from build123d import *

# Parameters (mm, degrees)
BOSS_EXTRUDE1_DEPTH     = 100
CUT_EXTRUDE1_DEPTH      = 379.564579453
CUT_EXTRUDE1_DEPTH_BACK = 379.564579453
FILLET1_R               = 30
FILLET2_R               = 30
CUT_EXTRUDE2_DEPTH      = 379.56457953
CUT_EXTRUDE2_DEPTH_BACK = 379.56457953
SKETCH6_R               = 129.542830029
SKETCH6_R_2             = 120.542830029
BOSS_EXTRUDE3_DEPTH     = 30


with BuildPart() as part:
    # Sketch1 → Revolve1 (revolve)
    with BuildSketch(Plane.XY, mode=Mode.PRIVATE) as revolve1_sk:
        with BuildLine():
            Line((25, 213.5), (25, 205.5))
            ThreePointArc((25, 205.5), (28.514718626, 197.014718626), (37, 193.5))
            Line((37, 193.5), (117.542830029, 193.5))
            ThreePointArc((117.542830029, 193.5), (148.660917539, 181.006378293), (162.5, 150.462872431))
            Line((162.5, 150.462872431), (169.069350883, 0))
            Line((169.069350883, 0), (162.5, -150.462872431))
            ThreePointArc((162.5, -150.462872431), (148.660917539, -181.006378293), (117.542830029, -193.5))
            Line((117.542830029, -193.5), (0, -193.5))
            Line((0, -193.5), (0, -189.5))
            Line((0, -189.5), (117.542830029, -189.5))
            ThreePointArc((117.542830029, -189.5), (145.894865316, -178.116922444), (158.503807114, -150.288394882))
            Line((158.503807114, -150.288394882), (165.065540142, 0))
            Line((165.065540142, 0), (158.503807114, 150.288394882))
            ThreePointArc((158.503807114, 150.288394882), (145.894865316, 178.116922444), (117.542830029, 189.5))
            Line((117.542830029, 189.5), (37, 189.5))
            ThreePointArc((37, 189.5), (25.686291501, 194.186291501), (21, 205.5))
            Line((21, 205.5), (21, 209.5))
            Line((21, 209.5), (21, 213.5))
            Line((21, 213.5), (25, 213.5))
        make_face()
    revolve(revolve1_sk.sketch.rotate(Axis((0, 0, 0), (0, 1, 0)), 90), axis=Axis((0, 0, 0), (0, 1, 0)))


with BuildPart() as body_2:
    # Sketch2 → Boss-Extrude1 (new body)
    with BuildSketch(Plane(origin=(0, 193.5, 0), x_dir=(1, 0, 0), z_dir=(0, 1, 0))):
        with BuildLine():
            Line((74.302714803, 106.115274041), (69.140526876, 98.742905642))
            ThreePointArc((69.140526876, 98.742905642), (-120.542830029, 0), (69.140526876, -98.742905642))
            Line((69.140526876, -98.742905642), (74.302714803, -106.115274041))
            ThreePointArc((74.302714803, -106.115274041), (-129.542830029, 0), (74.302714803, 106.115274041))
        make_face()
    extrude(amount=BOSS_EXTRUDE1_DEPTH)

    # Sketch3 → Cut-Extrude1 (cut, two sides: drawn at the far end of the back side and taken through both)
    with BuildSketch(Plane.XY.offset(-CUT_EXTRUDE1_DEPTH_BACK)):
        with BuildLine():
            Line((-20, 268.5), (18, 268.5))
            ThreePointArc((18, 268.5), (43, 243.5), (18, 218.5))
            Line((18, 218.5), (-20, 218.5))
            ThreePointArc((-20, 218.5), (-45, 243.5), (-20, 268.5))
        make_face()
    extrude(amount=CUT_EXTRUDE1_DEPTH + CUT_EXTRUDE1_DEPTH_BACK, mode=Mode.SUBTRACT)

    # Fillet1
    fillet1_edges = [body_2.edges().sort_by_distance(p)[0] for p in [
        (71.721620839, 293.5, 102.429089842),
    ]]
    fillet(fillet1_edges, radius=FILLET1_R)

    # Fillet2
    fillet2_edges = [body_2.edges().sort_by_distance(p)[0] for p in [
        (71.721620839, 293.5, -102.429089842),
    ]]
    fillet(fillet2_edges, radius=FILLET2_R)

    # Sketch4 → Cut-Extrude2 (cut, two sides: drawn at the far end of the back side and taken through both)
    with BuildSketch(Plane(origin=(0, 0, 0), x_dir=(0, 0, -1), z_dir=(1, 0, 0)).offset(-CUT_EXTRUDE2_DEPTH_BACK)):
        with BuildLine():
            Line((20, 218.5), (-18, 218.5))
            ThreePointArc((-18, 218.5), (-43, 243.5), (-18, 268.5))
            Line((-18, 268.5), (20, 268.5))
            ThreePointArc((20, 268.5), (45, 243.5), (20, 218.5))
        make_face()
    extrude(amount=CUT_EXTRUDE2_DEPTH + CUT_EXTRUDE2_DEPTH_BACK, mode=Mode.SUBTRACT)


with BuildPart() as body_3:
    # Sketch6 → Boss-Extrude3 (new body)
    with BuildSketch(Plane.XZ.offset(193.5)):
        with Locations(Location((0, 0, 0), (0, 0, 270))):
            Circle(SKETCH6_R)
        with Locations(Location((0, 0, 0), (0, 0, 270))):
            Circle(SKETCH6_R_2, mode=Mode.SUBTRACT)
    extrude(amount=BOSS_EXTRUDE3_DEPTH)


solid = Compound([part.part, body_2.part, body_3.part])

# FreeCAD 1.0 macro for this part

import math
import FreeCAD as App
import Part
import Sketcher
from FreeCAD import Vector
Q = App.Units.Quantity


def edges_at(feature, points):
    """Names of the edges that pass closest to the given points."""
    edges = feature.Shape.Edges
    near = lambda p: min(range(len(edges)), key=lambda i: edges[i].distToShape(Part.Vertex(*p))[0])
    return sorted({f"Edge{near(p) + 1}" for p in points})

doc = App.newDocument("Part")
params = doc.addObject("Spreadsheet::Sheet", "Params")
for row, (alias, value) in enumerate([
    ("sketch1_radius", "16 mm"),
    ("sketch1_radius2", "41 mm"),
    ("sketch1_radius3", "45 mm"),
    ("sketch1_height", "8 mm"),
    ("revolution_angle", "360 deg"),
    ("sketch2_length", "9 mm"),
    ("pad1_length", "100 mm"),
    ("sketch3_radius", "25 mm"),
    ("sketch3_width", "38 mm"),
    ("fillet_radius", "30 mm"),
    ("fillet2_radius", "30 mm"),
    ("sketch4_radius", "25 mm"),
    ("sketch4_height", "38 mm"),
    ("pad2_length", "30 mm"),
], start=1):
    params.set(f"A{row}", alias)
    params.set(f"B{row}", "=" + value)
    params.setAlias(f"B{row}", alias)

body = doc.addObject("PartDesign::Body", "Body")

# Sketch on XY plane
sketch1 = body.newObject("Sketcher::SketchObject", "Sketch")
sketch1.AttachmentSupport = (doc.getObject("XY_Plane"), [""])
sketch1.MapMode = "FlatFace"
sketch1.addGeometry(Part.LineSegment(Vector(25, 205.5, 0), Vector(25, 213.5, 0)), False)
sketch1.addGeometry(Part.LineSegment(Vector(25, 213.5, 0), Vector(21, 213.5, 0)), False)
sketch1.addGeometry(Part.LineSegment(Vector(21, 213.5, 0), Vector(21, 205.5, 0)), False)
sketch1.addGeometry(Part.ArcOfCircle(Part.Circle(Vector(37, 205.5, 0), Vector(0, 0, 1), 16), math.radians(180), math.radians(270)), False)
sketch1.addGeometry(Part.LineSegment(Vector(37, 189.5, 0), Vector(117.54283, 189.5, 0)), False)
sketch1.addGeometry(Part.ArcOfCircle(Part.Circle(Vector(117.54283, 148.5, 0), Vector(0, 0, 1), 41), math.radians(2.5), math.radians(90)), False)
sketch1.addGeometry(Part.LineSegment(Vector(158.503807, 150.288395, 0), Vector(165.06554, 0, 0)), False)
sketch1.addGeometry(Part.LineSegment(Vector(165.06554, 0, 0), Vector(158.503807, -150.288395, 0)), False)
sketch1.addGeometry(Part.ArcOfCircle(Part.Circle(Vector(117.54283, -148.5, 0), Vector(0, 0, 1), 41), math.radians(-90), math.radians(-2.5)), False)
sketch1.addGeometry(Part.LineSegment(Vector(117.54283, -189.5, 0), Vector(0, -189.5, 0)), False)
sketch1.addGeometry(Part.LineSegment(Vector(0, -189.5, 0), Vector(0, -193.5, 0)), False)
sketch1.addGeometry(Part.LineSegment(Vector(0, -193.5, 0), Vector(117.54283, -193.5, 0)), False)
sketch1.addGeometry(Part.ArcOfCircle(Part.Circle(Vector(117.54283, -148.5, 0), Vector(0, 0, 1), 45), math.radians(-90), math.radians(-2.5)), False)
sketch1.addGeometry(Part.LineSegment(Vector(162.5, -150.462872, 0), Vector(169.069351, 0, 0)), False)
sketch1.addGeometry(Part.LineSegment(Vector(169.069351, 0, 0), Vector(162.5, 150.462872, 0)), False)
sketch1.addGeometry(Part.ArcOfCircle(Part.Circle(Vector(117.54283, 148.5, 0), Vector(0, 0, 1), 45), math.radians(2.5), math.radians(90)), False)
sketch1.addGeometry(Part.LineSegment(Vector(117.54283, 193.5, 0), Vector(37, 193.5, 0)), False)
sketch1.addGeometry(Part.ArcOfCircle(Part.Circle(Vector(37, 205.5, 0), Vector(0, 0, 1), 12), math.radians(-180), math.radians(-90)), False)
sketch1.addConstraint(Sketcher.Constraint("Coincident", 0, 2, 1, 1))
sketch1.addConstraint(Sketcher.Constraint("Coincident", 1, 2, 2, 1))
sketch1.addConstraint(Sketcher.Constraint("Tangent", 2, 2, 3, 1))
sketch1.addConstraint(Sketcher.Constraint("Tangent", 3, 2, 4, 1))
sketch1.addConstraint(Sketcher.Constraint("Tangent", 4, 2, 5, 2))
sketch1.addConstraint(Sketcher.Constraint("Tangent", 5, 1, 6, 1))
sketch1.addConstraint(Sketcher.Constraint("Coincident", 6, 2, 7, 1))
sketch1.addConstraint(Sketcher.Constraint("Tangent", 7, 2, 8, 2))
sketch1.addConstraint(Sketcher.Constraint("Tangent", 8, 1, 9, 1))
sketch1.addConstraint(Sketcher.Constraint("Coincident", 9, 2, 10, 1))
sketch1.addConstraint(Sketcher.Constraint("Coincident", 10, 2, 11, 1))
sketch1.addConstraint(Sketcher.Constraint("Tangent", 11, 2, 12, 1))
sketch1.addConstraint(Sketcher.Constraint("Tangent", 12, 2, 13, 1))
sketch1.addConstraint(Sketcher.Constraint("Coincident", 13, 2, 14, 1))
sketch1.addConstraint(Sketcher.Constraint("Tangent", 14, 2, 15, 1))
sketch1.addConstraint(Sketcher.Constraint("Tangent", 15, 2, 16, 1))
sketch1.addConstraint(Sketcher.Constraint("Tangent", 16, 2, 17, 2))
sketch1.addConstraint(Sketcher.Constraint("Tangent", 17, 1, 0, 1))
sketch1.addConstraint(Sketcher.Constraint("Vertical", 0))
sketch1.addConstraint(Sketcher.Constraint("Horizontal", 1))
sketch1.addConstraint(Sketcher.Constraint("Vertical", 2))
sketch1.addConstraint(Sketcher.Constraint("Horizontal", 4))
sketch1.addConstraint(Sketcher.Constraint("Horizontal", 9))
sketch1.addConstraint(Sketcher.Constraint("Vertical", 10))
sketch1.addConstraint(Sketcher.Constraint("Horizontal", 11))
sketch1.addConstraint(Sketcher.Constraint("Horizontal", 16))
sketch1.addConstraint(Sketcher.Constraint("Coincident", 12, 3, 8, 3))
sketch1.addConstraint(Sketcher.Constraint("Coincident", 15, 3, 5, 3))
sketch1.addConstraint(Sketcher.Constraint("Coincident", 17, 3, 3, 3))
sketch1.addConstraint(Sketcher.Constraint("Equal", 5, 8))
sketch1.addConstraint(Sketcher.Constraint("Equal", 12, 15))
sketch1.addConstraint(Sketcher.Constraint("Symmetric", 5, 3, 8, 3, -1))
sketch1.addConstraint(Sketcher.Constraint("PointOnObject", 6, 2, -1))
sketch1.addConstraint(Sketcher.Constraint("PointOnObject", 9, 2, -2))
sketch1.addConstraint(Sketcher.Constraint("PointOnObject", 13, 2, -1))
sketch1.addConstraint(Sketcher.Constraint("Parallel", 7, 13))
sketch1.addConstraint(Sketcher.Constraint("Radius", 3, 16.0))
sketch1.addConstraint(Sketcher.Constraint("Radius", 5, 41.0))
sketch1.addConstraint(Sketcher.Constraint("Radius", 12, 45.0))
sketch1.addConstraint(Sketcher.Constraint("DistanceY", 0, 1, 0, 2, 8.0))
sketch1.addConstraint(Sketcher.Constraint("DistanceX", -1, 1, 3, 3, 37.0))
sketch1.addConstraint(Sketcher.Constraint("Angle", 6, Q("-87.5 deg")))
sketch1.addConstraint(Sketcher.Constraint("DistanceY", 8, 3, 5, 3, 297.0))
sketch1.addConstraint(Sketcher.Constraint("DistanceX", -1, 1, 12, 2, 162.5))
sketch1.setExpression("Constraints[36]", "Params.sketch1_radius")
sketch1.setExpression("Constraints[37]", "Params.sketch1_radius2")
sketch1.setExpression("Constraints[38]", "Params.sketch1_radius3")
sketch1.setExpression("Constraints[39]", "Params.sketch1_height")
revolution = body.newObject("PartDesign::Revolution", "Revolution")
revolution.Profile = sketch1
revolution.ReferenceAxis = (sketch1, ["V_Axis"])
revolution.setExpression("Angle", "Params.revolution_angle")
body2 = doc.addObject("PartDesign::Body", "Body001")

# Sketch on XZ plane
sketch2 = body2.newObject("Sketcher::SketchObject", "Sketch001")
sketch2.AttachmentSupport = (doc.getObject("XZ_Plane001"), [""])
sketch2.MapMode = "FlatFace"
sketch2.AttachmentOffset = App.Placement(Vector(0, 0, -193.5), App.Rotation())
sketch2.addGeometry(Part.LineSegment(Vector(69, -99, 0), Vector(74, -106, 0)), False)
sketch2.addGeometry(Part.ArcOfCircle(Part.Circle(Vector(0, 0, 0), Vector(0, 0, 1), 130), math.radians(55), math.radians(305)), False)
sketch2.addGeometry(Part.LineSegment(Vector(74, 106, 0), Vector(69, 99, 0)), False)
sketch2.addGeometry(Part.ArcOfCircle(Part.Circle(Vector(0, 0, 0), Vector(0, 0, 1), 121), math.radians(55), math.radians(305)), False)
sketch2.addConstraint(Sketcher.Constraint("Coincident", 0, 2, 1, 2))
sketch2.addConstraint(Sketcher.Constraint("Coincident", 1, 1, 2, 1))
sketch2.addConstraint(Sketcher.Constraint("Coincident", 2, 2, 3, 1))
sketch2.addConstraint(Sketcher.Constraint("Coincident", 3, 2, 0, 1))
sketch2.addConstraint(Sketcher.Constraint("Coincident", 1, 3, -1, 1))
sketch2.addConstraint(Sketcher.Constraint("Coincident", 3, 3, -1, 1))
sketch2.addConstraint(Sketcher.Constraint("Vertical", 0, 2, 1, 1))
sketch2.addConstraint(Sketcher.Constraint("Vertical", 2, 2, 3, 2))
sketch2.addConstraint(Sketcher.Constraint("Angle", 0, Q("-55 deg")))
sketch2.addConstraint(Sketcher.Constraint("Distance", 0, 9.0))
sketch2.addConstraint(Sketcher.Constraint("Radius", 1, 129.54283))
sketch2.addConstraint(Sketcher.Constraint("DistanceY", 0, 2, 1, 1, 212.230548))
sketch2.setExpression("Constraints[9]", "Params.sketch2_length")
pad1 = body2.newObject("PartDesign::Pad", "Pad")
pad1.Profile = sketch2
pad1.setExpression("Length", "Params.pad1_length")
pad1.Reversed = True

# Sketch on XY plane
sketch3 = body2.newObject("Sketcher::SketchObject", "Sketch002")
sketch3.AttachmentSupport = (doc.getObject("XY_Plane001"), [""])
sketch3.MapMode = "FlatFace"
sketch3.addGeometry(Part.LineSegment(Vector(18, 268, 0), Vector(-20, 268, 0)), False)
sketch3.addGeometry(Part.ArcOfCircle(Part.Circle(Vector(-20, 244, 0), Vector(0, 0, 1), 25), math.radians(90), math.radians(270)), False)
sketch3.addGeometry(Part.LineSegment(Vector(-20, 218, 0), Vector(18, 218, 0)), False)
sketch3.addGeometry(Part.ArcOfCircle(Part.Circle(Vector(18, 244, 0), Vector(0, 0, 1), 25), math.radians(-90), math.radians(90)), False)
sketch3.addConstraint(Sketcher.Constraint("Tangent", 0, 2, 1, 1))
sketch3.addConstraint(Sketcher.Constraint("Tangent", 1, 2, 2, 1))
sketch3.addConstraint(Sketcher.Constraint("Tangent", 2, 2, 3, 1))
sketch3.addConstraint(Sketcher.Constraint("Tangent", 3, 2, 0, 1))
sketch3.addConstraint(Sketcher.Constraint("Horizontal", 0))
sketch3.addConstraint(Sketcher.Constraint("Horizontal", 2))
sketch3.addConstraint(Sketcher.Constraint("Radius", 1, 25.0))
sketch3.addConstraint(Sketcher.Constraint("DistanceX", 0, 2, 0, 1, 38.0))
sketch3.addConstraint(Sketcher.Constraint("DistanceX", 1, 3, -1, 1, 20.0))
sketch3.addConstraint(Sketcher.Constraint("DistanceY", -1, 1, 1, 3, 243.5))
sketch3.setExpression("Constraints[6]", "Params.sketch3_radius")
sketch3.setExpression("Constraints[7]", "Params.sketch3_width")
pocket1 = body2.newObject("PartDesign::Pocket", "Pocket")
pocket1.Profile = sketch3
pocket1.Type = "ThroughAll"
pocket1.Midplane = True
doc.recompute()

fillet = body2.newObject("PartDesign::Fillet", "Fillet")
fillet.Base = (pocket1, edges_at(pocket1, [(71.722, 293.5, 102.429)]))
fillet.setExpression("Radius", "Params.fillet_radius")
doc.recompute()

fillet2 = body2.newObject("PartDesign::Fillet", "Fillet001")
fillet2.Base = (fillet, edges_at(fillet, [(71.722, 293.5, -102.429)]))
fillet2.setExpression("Radius", "Params.fillet2_radius")

# Sketch on YZ plane
sketch4 = body2.newObject("Sketcher::SketchObject", "Sketch003")
sketch4.AttachmentSupport = (doc.getObject("YZ_Plane001"), [""])
sketch4.MapMode = "FlatFace"
sketch4.addGeometry(Part.LineSegment(Vector(218, 18, 0), Vector(218, -20, 0)), False)
sketch4.addGeometry(Part.ArcOfCircle(Part.Circle(Vector(244, -20, 0), Vector(0, 0, 1), 25), math.radians(180), math.radians(360)), False)
sketch4.addGeometry(Part.LineSegment(Vector(268, -20, 0), Vector(268, 18, 0)), False)
sketch4.addGeometry(Part.ArcOfCircle(Part.Circle(Vector(244, 18, 0), Vector(0, 0, 1), 25), math.radians(0), math.radians(180)), False)
sketch4.addConstraint(Sketcher.Constraint("Tangent", 0, 2, 1, 1))
sketch4.addConstraint(Sketcher.Constraint("Tangent", 1, 2, 2, 1))
sketch4.addConstraint(Sketcher.Constraint("Tangent", 2, 2, 3, 1))
sketch4.addConstraint(Sketcher.Constraint("Tangent", 3, 2, 0, 1))
sketch4.addConstraint(Sketcher.Constraint("Vertical", 0))
sketch4.addConstraint(Sketcher.Constraint("Vertical", 2))
sketch4.addConstraint(Sketcher.Constraint("Radius", 1, 25.0))
sketch4.addConstraint(Sketcher.Constraint("DistanceY", 0, 2, 0, 1, 38.0))
sketch4.addConstraint(Sketcher.Constraint("DistanceY", 1, 3, -1, 1, 20.0))
sketch4.addConstraint(Sketcher.Constraint("DistanceX", -1, 1, 1, 3, 243.5))
sketch4.setExpression("Constraints[6]", "Params.sketch4_radius")
sketch4.setExpression("Constraints[7]", "Params.sketch4_height")
pocket2 = body2.newObject("PartDesign::Pocket", "Pocket001")
pocket2.Profile = sketch4
pocket2.Type = "ThroughAll"
pocket2.Midplane = True
body3 = doc.addObject("PartDesign::Body", "Body002")

# Sketch on XZ plane
sketch5 = body3.newObject("Sketcher::SketchObject", "Sketch004")
sketch5.AttachmentSupport = (doc.getObject("XZ_Plane002"), [""])
sketch5.MapMode = "FlatFace"
sketch5.AttachmentOffset = App.Placement(Vector(0, 0, 193.5), App.Rotation())
sketch5.addGeometry(Part.Circle(Vector(0, 0, 0), Vector(0, 0, 1), 130), False)
sketch5.addGeometry(Part.Circle(Vector(0, 0, 0), Vector(0, 0, 1), 121), False)
sketch5.addConstraint(Sketcher.Constraint("Coincident", 0, 3, -1, 1))
sketch5.addConstraint(Sketcher.Constraint("Coincident", 1, 3, -1, 1))
sketch5.addConstraint(Sketcher.Constraint("Diameter", 0, 259.08566))
sketch5.addConstraint(Sketcher.Constraint("Diameter", 1, 241.08566))
pad2 = body3.newObject("PartDesign::Pad", "Pad001")
pad2.Profile = sketch5
pad2.setExpression("Length", "Params.pad2_length")

doc.recompute()
